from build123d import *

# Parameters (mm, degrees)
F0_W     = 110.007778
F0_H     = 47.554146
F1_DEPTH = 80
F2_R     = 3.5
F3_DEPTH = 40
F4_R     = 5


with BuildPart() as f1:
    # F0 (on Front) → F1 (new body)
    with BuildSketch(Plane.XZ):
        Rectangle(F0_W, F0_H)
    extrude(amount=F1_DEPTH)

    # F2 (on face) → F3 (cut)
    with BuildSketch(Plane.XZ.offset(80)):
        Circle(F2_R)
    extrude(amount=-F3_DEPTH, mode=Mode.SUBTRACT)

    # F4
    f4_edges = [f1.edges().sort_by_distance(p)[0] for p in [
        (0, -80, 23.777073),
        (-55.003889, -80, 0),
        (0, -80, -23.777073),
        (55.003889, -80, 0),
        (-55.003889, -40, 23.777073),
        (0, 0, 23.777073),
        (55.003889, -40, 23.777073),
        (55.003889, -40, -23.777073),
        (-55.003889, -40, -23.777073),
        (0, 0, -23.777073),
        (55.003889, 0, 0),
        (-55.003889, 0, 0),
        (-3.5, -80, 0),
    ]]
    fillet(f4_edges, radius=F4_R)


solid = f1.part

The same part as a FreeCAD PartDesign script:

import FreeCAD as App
import Part
import Sketcher
from FreeCAD import Vector
Q = App.Units.Quantity


def edges_at(feature, points):
    """Names of the edges that pass closest to the given points."""
    edges = feature.Shape.Edges
    near = lambda p: min(range(len(edges)), key=lambda i: edges[i].distToShape(Part.Vertex(*p))[0])
    return sorted({f"Edge{near(p) + 1}" for p in points})

doc = App.newDocument("Part")
body = doc.addObject("PartDesign::Body", "Body")

# Sketch on XZ plane
sketch1 = body.newObject("Sketcher::SketchObject", "Sketch")
sketch1.AttachmentSupport = (doc.getObject("XZ_Plane"), [""])
sketch1.MapMode = "FlatFace"
sketch1.addGeometry(Part.LineSegment(Vector(-55, 24, 0), Vector(-55, -24, 0)), False)
sketch1.addGeometry(Part.LineSegment(Vector(-55, -24, 0), Vector(55, -24, 0)), False)
sketch1.addGeometry(Part.LineSegment(Vector(55, -24, 0), Vector(55, 24, 0)), False)
sketch1.addGeometry(Part.LineSegment(Vector(55, 24, 0), Vector(-55, 24, 0)), False)
sketch1.addConstraint(Sketcher.Constraint("Coincident", 0, 2, 1, 1))
sketch1.addConstraint(Sketcher.Constraint("Coincident", 1, 2, 2, 1))
sketch1.addConstraint(Sketcher.Constraint("Coincident", 2, 2, 3, 1))
sketch1.addConstraint(Sketcher.Constraint("Coincident", 3, 2, 0, 1))
sketch1.addConstraint(Sketcher.Constraint("Vertical", 0))
sketch1.addConstraint(Sketcher.Constraint("Horizontal", 1))
sketch1.addConstraint(Sketcher.Constraint("Vertical", 2))
sketch1.addConstraint(Sketcher.Constraint("Horizontal", 3))
sketch1.addConstraint(Sketcher.Constraint("Symmetric", 0, 2, 2, 2, -1, 1))
sketch1.addConstraint(Sketcher.Constraint("DistanceX", 1, 1, 1, 2, Q("110.007778 mm")))
sketch1.addConstraint(Sketcher.Constraint("DistanceY", 0, 2, 0, 1, Q("47.554146 mm")))
pad1 = body.newObject("PartDesign::Pad", "Pad")
pad1.Profile = sketch1
pad1.Length = 80

# Sketch on XZ plane
sketch2 = body.newObject("Sketcher::SketchObject", "Sketch001")
sketch2.AttachmentSupport = (doc.getObject("XZ_Plane"), [""])
sketch2.MapMode = "FlatFace"
sketch2.AttachmentOffset = App.Placement(Vector(0, 0, 80), App.Rotation())
sketch2.addGeometry(Part.Circle(Vector(0, 0, 0), Vector(0, 0, 1), 3.5), False)
sketch2.addConstraint(Sketcher.Constraint("Coincident", 0, 3, -1, 1))
sketch2.addConstraint(Sketcher.Constraint("Diameter", 0, Q("7 mm")))
pocket1 = body.newObject("PartDesign::Pocket", "Pocket")
pocket1.Profile = sketch2
pocket1.Length = 40
doc.recompute()

fillet = body.newObject("PartDesign::Fillet", "Fillet")
fillet.Base = (pocket1, edges_at(pocket1, [
    (0, -80, 23.777),
    (-55.004, -80, 0),
    (0, -80, -23.777),
    (55.004, -80, 0),
    (-55.004, -40, 23.777),
    (0, 0, 23.777),
    (55.004, -40, 23.777),
    (55.004, -40, -23.777),
    (-55.004, -40, -23.777),
    (0, 0, -23.777),
    (55.004, 0, 0),
    (-55.004, 0, 0),
    (-3.5, -80, 0),
]))
fillet.Radius = 5

doc.recompute()
